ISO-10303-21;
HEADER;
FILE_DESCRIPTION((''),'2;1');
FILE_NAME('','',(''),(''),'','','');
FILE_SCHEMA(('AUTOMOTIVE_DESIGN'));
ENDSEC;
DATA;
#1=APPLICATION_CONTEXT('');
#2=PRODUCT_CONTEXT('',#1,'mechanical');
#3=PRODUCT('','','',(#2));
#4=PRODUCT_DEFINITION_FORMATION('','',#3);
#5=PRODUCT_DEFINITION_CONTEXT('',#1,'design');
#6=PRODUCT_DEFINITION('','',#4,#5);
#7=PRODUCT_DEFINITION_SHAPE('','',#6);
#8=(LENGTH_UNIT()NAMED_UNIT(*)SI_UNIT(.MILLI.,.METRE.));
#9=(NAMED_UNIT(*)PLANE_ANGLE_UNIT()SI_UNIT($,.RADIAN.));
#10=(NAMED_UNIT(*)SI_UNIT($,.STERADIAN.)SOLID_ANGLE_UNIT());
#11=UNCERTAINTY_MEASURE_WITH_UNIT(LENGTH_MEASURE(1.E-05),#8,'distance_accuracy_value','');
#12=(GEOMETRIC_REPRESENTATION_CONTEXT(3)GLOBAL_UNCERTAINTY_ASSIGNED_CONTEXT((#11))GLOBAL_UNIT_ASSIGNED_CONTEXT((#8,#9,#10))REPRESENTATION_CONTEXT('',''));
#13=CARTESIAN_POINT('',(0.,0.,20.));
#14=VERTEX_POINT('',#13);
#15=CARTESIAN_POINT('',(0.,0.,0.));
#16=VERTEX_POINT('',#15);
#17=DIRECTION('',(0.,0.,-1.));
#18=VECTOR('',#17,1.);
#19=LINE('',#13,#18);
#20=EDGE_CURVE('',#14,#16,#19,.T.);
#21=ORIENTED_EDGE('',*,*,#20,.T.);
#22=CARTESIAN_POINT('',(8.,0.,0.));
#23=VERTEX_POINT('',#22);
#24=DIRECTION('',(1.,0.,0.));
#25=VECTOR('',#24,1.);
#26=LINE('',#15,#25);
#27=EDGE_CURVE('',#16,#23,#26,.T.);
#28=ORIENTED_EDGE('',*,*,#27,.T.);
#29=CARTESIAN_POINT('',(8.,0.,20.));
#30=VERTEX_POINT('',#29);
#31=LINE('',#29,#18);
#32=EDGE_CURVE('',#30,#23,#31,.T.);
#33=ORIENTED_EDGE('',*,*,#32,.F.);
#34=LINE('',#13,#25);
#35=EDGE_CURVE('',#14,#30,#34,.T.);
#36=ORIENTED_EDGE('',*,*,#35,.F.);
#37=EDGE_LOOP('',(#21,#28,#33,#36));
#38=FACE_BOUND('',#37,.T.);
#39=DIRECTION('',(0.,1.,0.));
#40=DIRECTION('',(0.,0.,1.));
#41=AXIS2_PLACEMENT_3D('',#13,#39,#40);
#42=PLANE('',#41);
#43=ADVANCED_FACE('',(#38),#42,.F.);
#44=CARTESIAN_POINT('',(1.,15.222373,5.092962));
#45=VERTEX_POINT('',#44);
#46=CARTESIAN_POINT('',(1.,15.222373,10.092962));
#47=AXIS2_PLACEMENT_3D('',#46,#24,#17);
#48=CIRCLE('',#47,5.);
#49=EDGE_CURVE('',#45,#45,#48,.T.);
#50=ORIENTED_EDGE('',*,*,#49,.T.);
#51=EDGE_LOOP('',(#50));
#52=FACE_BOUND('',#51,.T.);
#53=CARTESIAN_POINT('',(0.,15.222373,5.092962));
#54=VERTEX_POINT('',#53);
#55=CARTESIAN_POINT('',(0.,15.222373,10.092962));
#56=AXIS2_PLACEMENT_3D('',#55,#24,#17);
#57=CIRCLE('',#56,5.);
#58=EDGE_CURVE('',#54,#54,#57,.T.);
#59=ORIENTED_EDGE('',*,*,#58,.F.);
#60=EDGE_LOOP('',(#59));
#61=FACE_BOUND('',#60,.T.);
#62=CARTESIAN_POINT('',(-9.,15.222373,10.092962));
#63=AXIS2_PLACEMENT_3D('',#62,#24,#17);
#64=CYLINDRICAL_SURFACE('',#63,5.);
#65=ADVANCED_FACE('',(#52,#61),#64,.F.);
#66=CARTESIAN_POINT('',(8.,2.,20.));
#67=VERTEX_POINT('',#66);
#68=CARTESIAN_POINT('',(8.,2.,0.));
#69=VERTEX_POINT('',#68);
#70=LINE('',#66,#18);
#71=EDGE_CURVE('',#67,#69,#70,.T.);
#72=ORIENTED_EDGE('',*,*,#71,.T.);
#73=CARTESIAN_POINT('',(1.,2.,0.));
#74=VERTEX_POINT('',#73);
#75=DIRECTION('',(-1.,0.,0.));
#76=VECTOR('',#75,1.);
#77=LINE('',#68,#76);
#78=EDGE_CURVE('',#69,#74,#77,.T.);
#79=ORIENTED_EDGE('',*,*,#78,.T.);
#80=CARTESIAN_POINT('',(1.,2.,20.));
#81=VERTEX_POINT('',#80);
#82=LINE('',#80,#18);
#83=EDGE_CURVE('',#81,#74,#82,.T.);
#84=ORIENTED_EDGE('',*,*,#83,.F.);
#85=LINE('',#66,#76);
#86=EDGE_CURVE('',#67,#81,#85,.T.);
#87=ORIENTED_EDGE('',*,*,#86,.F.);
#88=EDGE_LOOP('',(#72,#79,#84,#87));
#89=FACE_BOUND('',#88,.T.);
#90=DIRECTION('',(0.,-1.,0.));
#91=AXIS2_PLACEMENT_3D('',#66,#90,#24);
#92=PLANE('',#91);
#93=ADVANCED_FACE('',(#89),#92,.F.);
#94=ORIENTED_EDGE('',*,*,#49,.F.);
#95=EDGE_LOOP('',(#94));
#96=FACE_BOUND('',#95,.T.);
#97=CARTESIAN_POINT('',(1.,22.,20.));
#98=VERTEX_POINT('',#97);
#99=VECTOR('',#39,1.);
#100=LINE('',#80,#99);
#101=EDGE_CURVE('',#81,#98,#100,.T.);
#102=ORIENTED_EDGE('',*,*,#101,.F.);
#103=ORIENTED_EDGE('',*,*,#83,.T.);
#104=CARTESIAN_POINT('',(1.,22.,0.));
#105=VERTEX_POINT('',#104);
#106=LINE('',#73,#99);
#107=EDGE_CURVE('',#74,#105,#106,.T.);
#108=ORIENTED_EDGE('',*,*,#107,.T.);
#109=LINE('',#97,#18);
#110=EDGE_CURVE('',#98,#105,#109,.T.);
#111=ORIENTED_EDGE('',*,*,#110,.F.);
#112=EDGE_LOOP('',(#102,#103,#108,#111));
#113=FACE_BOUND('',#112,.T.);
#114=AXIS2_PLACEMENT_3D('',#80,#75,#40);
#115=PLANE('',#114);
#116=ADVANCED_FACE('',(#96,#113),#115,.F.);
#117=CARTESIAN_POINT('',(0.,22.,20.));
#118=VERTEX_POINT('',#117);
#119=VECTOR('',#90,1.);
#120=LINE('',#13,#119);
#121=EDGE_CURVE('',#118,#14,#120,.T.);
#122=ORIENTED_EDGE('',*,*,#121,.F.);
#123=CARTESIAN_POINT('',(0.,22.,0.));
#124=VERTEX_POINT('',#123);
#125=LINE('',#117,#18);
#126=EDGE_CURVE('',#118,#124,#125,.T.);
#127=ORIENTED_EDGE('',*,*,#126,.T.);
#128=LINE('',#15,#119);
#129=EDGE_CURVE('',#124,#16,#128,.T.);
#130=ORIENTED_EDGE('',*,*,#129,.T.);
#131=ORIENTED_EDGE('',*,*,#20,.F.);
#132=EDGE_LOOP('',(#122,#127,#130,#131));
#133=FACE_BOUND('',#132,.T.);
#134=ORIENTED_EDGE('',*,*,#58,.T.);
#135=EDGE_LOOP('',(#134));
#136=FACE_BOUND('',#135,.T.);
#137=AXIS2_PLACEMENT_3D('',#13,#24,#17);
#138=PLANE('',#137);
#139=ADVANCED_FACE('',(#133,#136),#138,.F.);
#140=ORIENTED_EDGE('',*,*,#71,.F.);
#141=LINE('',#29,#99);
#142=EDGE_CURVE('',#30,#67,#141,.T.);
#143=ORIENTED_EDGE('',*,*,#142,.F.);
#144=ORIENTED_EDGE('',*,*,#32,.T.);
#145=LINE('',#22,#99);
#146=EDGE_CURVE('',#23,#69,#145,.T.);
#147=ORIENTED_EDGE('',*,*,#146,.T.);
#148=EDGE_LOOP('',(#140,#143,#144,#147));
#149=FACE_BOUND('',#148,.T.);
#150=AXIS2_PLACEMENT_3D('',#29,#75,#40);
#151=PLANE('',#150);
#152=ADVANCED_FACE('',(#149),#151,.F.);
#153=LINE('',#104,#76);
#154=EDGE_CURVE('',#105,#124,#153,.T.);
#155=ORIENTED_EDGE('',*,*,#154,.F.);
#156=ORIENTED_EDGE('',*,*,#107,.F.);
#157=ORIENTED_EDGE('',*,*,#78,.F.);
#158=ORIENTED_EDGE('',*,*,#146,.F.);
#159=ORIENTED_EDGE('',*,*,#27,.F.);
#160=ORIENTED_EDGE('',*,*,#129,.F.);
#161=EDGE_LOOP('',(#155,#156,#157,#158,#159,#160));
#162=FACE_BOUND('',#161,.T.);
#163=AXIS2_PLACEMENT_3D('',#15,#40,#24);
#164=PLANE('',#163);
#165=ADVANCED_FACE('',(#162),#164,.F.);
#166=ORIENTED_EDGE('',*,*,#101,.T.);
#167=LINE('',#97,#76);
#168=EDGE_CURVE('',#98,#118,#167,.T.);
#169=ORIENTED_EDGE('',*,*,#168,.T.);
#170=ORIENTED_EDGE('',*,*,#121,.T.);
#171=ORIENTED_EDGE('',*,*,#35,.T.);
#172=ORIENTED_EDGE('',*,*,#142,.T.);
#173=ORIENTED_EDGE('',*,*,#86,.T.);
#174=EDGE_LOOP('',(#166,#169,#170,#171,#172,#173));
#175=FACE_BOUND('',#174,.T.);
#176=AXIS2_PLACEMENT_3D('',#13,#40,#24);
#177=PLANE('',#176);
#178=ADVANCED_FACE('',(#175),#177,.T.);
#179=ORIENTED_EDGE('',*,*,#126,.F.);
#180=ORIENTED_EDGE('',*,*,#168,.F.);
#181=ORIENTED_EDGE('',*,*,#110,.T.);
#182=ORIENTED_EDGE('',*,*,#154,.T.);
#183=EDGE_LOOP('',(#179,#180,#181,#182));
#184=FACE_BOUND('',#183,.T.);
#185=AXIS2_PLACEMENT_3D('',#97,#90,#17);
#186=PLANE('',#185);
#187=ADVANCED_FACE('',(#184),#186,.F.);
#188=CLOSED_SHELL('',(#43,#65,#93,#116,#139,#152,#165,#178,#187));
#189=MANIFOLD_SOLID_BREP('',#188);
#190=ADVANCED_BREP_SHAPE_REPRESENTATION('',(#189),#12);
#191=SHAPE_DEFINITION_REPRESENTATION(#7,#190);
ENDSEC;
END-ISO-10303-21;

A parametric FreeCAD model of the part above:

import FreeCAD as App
import Part
import Sketcher
Q = App.Units.Quantity


def add_polygon(sketch, points):
    """Adds a closed chain of lines whose ends are joined by coincident constraints."""
    first, n = sketch.GeometryCount, len(points)
    for a, b in zip(points, points[1:] + points[:1]):
        sketch.addGeometry(Part.LineSegment(App.Vector(*a, 0), App.Vector(*b, 0)), False)
    for i in range(n):
        sketch.addConstraint(Sketcher.Constraint("Coincident", first + i, 2, first + (i + 1) % n, 1))

doc = App.newDocument("Part")
params = doc.addObject("Spreadsheet::Sheet", "Params")
for row, (alias, value) in enumerate([
    ("sketch1_width", "8 mm"),
    ("sketch1_width2", "7 mm"),
    ("sketch1_height", "2 mm"),
    ("sketch1_height2", "20 mm"),
    ("pad1_length", "20 mm"),
    ("sketch2_diameter", "10 mm"),
    ("pocket1_length", "10 mm"),
], start=1):
    params.set(f"A{row}", alias)
    params.set(f"B{row}", "=" + value)
    params.setAlias(f"B{row}", alias)

body = doc.addObject("PartDesign::Body", "Body")

sketch1 = body.newObject("Sketcher::SketchObject", "Sketch")
sketch1.AttachmentSupport = (doc.getObject("XY_Plane"), [""])
sketch1.MapMode = "FlatFace"
add_polygon(sketch1, [(0, 0), (8, 0), (8, 2), (1, 2), (1, 22), (0, 22)])
sketch1.addConstraint([
    Sketcher.Constraint("Horizontal", 0),
    Sketcher.Constraint("Vertical", 1),
    Sketcher.Constraint("Horizontal", 2),
    Sketcher.Constraint("Vertical", 3),
    Sketcher.Constraint("Horizontal", 4),
    Sketcher.Constraint("Vertical", 5),
    Sketcher.Constraint("Coincident", 5, 2, -1, 1),
    Sketcher.Constraint("DistanceX", 0, 1, 0, 2, Q("8 mm")),
    Sketcher.Constraint("DistanceX", 2, 2, 2, 1, Q("7 mm")),
    Sketcher.Constraint("DistanceY", 1, 1, 1, 2, Q("2 mm")),
    Sketcher.Constraint("DistanceY", 3, 1, 3, 2, Q("20 mm")),
])
sketch1.setExpression("Constraints[13]", "Params.sketch1_width")
sketch1.setExpression("Constraints[14]", "Params.sketch1_width2")
sketch1.setExpression("Constraints[15]", "Params.sketch1_height")
sketch1.setExpression("Constraints[16]", "Params.sketch1_height2")
pad1 = body.newObject("PartDesign::Pad", "Pad")
pad1.Profile = sketch1
pad1.setExpression("Length", "Params.pad1_length")

sketch2 = body.newObject("Sketcher::SketchObject", "Sketch001")
sketch2.AttachmentSupport = (doc.getObject("YZ_Plane"), [""])
sketch2.MapMode = "FlatFace"
sketch2.AttachmentOffset = App.Placement(App.Vector(0, 0, 1), App.Rotation())
sketch2.addGeometry(Part.Circle(App.Vector(15.222373, 10.092962, 0), App.Vector(0, 0, 1), 5), False)
sketch2.addConstraint([
    Sketcher.Constraint("Diameter", 0, Q("10 mm")),
    Sketcher.Constraint("DistanceX", -1, 1, 0, 3, Q("15.222373 mm")),
    Sketcher.Constraint("DistanceY", -1, 1, 0, 3, Q("10.092962 mm")),
])
sketch2.setExpression("Constraints[0]", "Params.sketch2_diameter")
pocket1 = body.newObject("PartDesign::Pocket", "Pocket")
pocket1.Profile = sketch2
pocket1.setExpression("Length", "Params.pocket1_length")

doc.recompute()
